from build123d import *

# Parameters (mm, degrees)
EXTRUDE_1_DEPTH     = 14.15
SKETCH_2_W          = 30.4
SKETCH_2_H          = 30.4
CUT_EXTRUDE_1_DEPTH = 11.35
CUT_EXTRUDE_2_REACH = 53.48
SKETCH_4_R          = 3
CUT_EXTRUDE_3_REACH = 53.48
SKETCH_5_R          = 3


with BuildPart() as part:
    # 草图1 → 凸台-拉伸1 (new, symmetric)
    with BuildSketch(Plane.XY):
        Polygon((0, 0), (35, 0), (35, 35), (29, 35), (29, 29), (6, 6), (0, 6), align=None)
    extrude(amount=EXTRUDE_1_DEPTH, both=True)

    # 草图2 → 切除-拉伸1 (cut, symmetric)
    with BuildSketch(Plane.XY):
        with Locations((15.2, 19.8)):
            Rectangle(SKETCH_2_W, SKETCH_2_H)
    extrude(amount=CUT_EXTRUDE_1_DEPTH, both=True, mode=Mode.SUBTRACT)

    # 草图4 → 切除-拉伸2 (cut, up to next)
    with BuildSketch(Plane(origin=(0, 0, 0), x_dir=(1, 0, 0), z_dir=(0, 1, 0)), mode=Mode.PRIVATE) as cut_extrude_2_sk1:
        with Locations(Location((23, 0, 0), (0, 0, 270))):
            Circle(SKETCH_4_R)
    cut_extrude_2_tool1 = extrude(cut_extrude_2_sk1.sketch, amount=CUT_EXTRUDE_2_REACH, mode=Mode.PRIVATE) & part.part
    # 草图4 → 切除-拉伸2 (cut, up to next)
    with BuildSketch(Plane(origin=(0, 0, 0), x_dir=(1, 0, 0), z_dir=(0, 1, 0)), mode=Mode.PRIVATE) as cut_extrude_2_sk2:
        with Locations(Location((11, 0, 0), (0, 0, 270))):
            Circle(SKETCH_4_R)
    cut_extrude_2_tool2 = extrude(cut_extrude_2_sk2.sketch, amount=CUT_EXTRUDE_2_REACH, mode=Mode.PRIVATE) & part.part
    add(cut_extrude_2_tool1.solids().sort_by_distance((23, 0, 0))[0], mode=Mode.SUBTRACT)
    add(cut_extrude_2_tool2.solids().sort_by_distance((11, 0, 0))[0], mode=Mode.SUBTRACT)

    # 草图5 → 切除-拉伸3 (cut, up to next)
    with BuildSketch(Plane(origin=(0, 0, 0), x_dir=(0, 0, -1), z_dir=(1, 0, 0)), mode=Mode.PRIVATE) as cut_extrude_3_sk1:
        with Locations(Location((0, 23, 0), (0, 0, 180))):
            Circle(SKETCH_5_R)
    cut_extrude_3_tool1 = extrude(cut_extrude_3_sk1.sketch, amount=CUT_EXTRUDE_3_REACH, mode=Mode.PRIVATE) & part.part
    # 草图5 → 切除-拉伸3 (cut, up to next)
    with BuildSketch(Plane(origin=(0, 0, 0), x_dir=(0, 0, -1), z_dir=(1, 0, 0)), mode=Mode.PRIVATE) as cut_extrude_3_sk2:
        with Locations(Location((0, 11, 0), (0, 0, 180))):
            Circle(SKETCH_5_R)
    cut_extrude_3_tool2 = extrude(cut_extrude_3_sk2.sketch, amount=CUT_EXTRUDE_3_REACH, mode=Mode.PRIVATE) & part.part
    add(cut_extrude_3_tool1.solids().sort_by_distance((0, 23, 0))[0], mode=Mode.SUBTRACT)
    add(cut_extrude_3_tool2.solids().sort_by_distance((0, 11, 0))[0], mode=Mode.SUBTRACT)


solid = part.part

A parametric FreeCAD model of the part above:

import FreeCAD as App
import Part
import Sketcher
from FreeCAD import Vector


def add_polygon(sketch, points):
    """Adds a closed chain of lines whose ends are joined by coincident constraints."""
    first, n = sketch.GeometryCount, len(points)
    for a, b in zip(points, points[1:] + points[:1]):
        sketch.addGeometry(Part.LineSegment(App.Vector(*a, 0), App.Vector(*b, 0)), False)
    for i in range(n):
        sketch.addConstraint(Sketcher.Constraint("Coincident", first + i, 2, first + (i + 1) % n, 1))

doc = App.newDocument("Part")
body = doc.addObject("PartDesign::Body", "Body")

sketch1 = body.newObject("Sketcher::SketchObject", "Sketch")
sketch1.AttachmentSupport = (doc.getObject("XY_Plane"), [""])
sketch1.MapMode = "FlatFace"
add_polygon(sketch1, [(0, 0), (35, 0), (35, 35), (29, 35), (29, 29), (6, 6), (0, 6)])
sketch1.addConstraint([
    Sketcher.Constraint("Horizontal", 0),
    Sketcher.Constraint("Vertical", 1),
    Sketcher.Constraint("Horizontal", 2),
    Sketcher.Constraint("Vertical", 3),
    Sketcher.Constraint("Horizontal", 5),
    Sketcher.Constraint("Vertical", 6),
    Sketcher.Constraint("Coincident", 6, 2, -1, 1),
    Sketcher.Constraint("Equal", 2, 5),
    Sketcher.Constraint("Equal", 0, 1),
    Sketcher.Constraint("Equal", 5, 3),
    Sketcher.Constraint("Equal", 3, 6),
    Sketcher.Constraint("DistanceX", 0, 1, 0, 2, 35.0),
    Sketcher.Constraint("DistanceX", 2, 2, 2, 1, 6.0),
])
pad1 = body.newObject("PartDesign::Pad", "Pad")
pad1.Profile = sketch1
pad1.Length = 28.3
pad1.Midplane = True

sketch2 = body.newObject("Sketcher::SketchObject", "Sketch001")
sketch2.AttachmentSupport = (doc.getObject("XY_Plane"), [""])
sketch2.MapMode = "FlatFace"
add_polygon(sketch2, [(0, 35), (0, 5), (30, 5), (30, 35)])
sketch2.addConstraint([
    Sketcher.Constraint("Vertical", 0),
    Sketcher.Constraint("Horizontal", 1),
    Sketcher.Constraint("Vertical", 2),
    Sketcher.Constraint("Horizontal", 3),
    Sketcher.Constraint("PointOnObject", 0, 2, -2),
    Sketcher.Constraint("Equal", 3, 0),
    Sketcher.Constraint("DistanceX", 1, 1, 1, 2, 30.4),
    Sketcher.Constraint("DistanceY", -1, 1, 2, 2, 35.0),
])
pocket1 = body.newObject("PartDesign::Pocket", "Pocket")
pocket1.Profile = sketch2
pocket1.Length = 22.7
pocket1.Midplane = True

sketch3 = body.newObject("Sketcher::SketchObject", "Sketch002")
sketch3.AttachmentSupport = (doc.getObject("XZ_Plane"), [""])
sketch3.MapMode = "FlatFace"
sketch3.addGeometry(Part.Circle(Vector(23, 0, 0), Vector(0, 0, 1), 3), False)
sketch3.addConstraint([
    Sketcher.Constraint("PointOnObject", 0, 3, -1),
    Sketcher.Constraint("Diameter", 0, 6.0),
    Sketcher.Constraint("DistanceX", -1, 1, 0, 3, 23.0),
])
pocket2 = body.newObject("PartDesign::Pocket", "Pocket001")
pocket2.Profile = sketch3
pocket2.Type = "UpToFirst"

sketch4 = body.newObject("Sketcher::SketchObject", "Sketch003")
sketch4.AttachmentSupport = (doc.getObject("XZ_Plane"), [""])
sketch4.MapMode = "FlatFace"
sketch4.addGeometry(Part.Circle(Vector(11, 0, 0), Vector(0, 0, 1), 3), False)
sketch4.addConstraint([
    Sketcher.Constraint("PointOnObject", 0, 3, -1),
    Sketcher.Constraint("Diameter", 0, 6.0),
    Sketcher.Constraint("DistanceX", -1, 1, 0, 3, 11.0),
])
pocket3 = body.newObject("PartDesign::Pocket", "Pocket002")
pocket3.Profile = sketch4
pocket3.Type = "UpToFirst"

sketch5 = body.newObject("Sketcher::SketchObject", "Sketch004")
sketch5.AttachmentSupport = (doc.getObject("YZ_Plane"), [""])
sketch5.MapMode = "FlatFace"
sketch5.addGeometry(Part.Circle(Vector(23, 0, 0), Vector(0, 0, 1), 3), False)
sketch5.addConstraint([
    Sketcher.Constraint("PointOnObject", 0, 3, -1),
    Sketcher.Constraint("Diameter", 0, 6.0),
    Sketcher.Constraint("DistanceX", -1, 1, 0, 3, 23.0),
])
pocket4 = body.newObject("PartDesign::Pocket", "Pocket003")
pocket4.Profile = sketch5
pocket4.Length = 35
pocket4.Reversed = True

sketch6 = body.newObject("Sketcher::SketchObject", "Sketch005")
sketch6.AttachmentSupport = (doc.getObject("YZ_Plane"), [""])
sketch6.MapMode = "FlatFace"
sketch6.addGeometry(Part.Circle(Vector(11, 0, 0), Vector(0, 0, 1), 3), False)
sketch6.addConstraint([
    Sketcher.Constraint("PointOnObject", 0, 3, -1),
    Sketcher.Constraint("Diameter", 0, 6.0),
    Sketcher.Constraint("DistanceX", -1, 1, 0, 3, 11.0),
])
pocket5 = body.newObject("PartDesign::Pocket", "Pocket004")
pocket5.Profile = sketch6
pocket5.Length = 35
pocket5.Reversed = True

doc.recompute()
